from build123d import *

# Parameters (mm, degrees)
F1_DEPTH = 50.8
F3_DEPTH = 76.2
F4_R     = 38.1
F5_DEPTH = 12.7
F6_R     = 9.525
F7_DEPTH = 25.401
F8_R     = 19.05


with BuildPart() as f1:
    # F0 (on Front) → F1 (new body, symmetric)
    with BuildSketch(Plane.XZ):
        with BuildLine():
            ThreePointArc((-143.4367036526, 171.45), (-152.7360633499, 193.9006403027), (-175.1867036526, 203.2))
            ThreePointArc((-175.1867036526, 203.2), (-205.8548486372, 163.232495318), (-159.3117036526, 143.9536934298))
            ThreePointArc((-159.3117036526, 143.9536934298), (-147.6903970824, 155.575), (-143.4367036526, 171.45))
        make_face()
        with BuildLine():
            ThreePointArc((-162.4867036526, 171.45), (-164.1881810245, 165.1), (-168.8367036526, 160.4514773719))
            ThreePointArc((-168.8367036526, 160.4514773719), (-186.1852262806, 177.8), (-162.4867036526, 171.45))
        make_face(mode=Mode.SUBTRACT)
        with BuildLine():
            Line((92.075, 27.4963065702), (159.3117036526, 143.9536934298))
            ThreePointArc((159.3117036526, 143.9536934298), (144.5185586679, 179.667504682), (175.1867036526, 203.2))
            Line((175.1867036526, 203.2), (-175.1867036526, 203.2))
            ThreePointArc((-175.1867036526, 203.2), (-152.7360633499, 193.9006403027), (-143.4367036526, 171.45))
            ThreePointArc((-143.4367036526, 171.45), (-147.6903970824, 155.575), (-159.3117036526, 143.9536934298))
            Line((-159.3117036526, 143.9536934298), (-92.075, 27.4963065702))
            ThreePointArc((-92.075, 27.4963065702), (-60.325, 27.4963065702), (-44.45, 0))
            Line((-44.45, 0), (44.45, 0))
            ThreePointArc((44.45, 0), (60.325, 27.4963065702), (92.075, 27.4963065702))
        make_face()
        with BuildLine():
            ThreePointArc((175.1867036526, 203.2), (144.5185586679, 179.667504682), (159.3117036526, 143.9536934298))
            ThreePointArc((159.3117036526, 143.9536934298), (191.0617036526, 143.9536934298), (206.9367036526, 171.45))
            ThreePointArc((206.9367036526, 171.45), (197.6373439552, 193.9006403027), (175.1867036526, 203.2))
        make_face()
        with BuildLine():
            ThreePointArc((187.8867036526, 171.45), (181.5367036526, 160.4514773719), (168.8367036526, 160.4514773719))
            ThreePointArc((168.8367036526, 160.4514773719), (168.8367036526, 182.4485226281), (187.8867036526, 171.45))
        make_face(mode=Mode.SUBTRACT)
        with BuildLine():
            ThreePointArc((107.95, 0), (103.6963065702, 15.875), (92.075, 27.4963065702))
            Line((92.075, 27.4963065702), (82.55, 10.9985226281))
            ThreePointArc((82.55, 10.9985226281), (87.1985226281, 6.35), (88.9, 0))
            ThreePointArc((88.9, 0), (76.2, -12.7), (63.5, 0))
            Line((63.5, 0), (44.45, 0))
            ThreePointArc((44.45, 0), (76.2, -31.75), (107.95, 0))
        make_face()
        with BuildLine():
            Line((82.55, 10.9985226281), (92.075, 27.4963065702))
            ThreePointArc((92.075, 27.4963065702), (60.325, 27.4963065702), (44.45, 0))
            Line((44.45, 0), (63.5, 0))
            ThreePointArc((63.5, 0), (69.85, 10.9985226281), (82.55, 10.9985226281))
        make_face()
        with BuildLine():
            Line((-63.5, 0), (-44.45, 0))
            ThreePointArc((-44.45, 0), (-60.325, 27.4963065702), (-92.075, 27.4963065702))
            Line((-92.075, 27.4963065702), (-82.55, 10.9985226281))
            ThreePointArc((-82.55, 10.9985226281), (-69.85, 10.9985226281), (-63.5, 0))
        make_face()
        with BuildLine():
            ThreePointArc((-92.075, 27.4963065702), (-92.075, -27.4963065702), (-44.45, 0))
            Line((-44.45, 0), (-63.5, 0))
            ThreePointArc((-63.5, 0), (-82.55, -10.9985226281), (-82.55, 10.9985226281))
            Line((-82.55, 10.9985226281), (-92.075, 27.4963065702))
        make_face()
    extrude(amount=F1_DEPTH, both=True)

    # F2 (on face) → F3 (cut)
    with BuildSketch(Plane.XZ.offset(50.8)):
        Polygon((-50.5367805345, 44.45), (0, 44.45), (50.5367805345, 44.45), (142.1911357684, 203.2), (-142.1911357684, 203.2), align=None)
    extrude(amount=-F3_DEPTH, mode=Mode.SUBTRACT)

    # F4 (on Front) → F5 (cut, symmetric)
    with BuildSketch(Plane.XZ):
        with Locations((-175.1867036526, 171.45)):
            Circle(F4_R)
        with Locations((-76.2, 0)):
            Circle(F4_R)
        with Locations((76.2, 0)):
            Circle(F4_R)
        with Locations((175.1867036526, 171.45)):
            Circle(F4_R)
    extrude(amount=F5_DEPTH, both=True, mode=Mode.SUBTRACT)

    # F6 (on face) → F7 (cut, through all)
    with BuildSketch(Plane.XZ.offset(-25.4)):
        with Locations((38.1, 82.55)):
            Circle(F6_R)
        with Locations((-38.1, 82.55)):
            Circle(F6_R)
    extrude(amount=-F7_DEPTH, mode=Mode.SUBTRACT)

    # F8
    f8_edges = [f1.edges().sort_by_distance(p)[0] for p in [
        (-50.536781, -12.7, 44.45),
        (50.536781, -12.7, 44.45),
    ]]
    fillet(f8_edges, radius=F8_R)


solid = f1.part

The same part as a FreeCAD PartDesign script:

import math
import FreeCAD as App
import Part
import Sketcher
from FreeCAD import Vector
Q = App.Units.Quantity


def edges_at(feature, points):
    """Names of the edges that pass closest to the given points."""
    edges = feature.Shape.Edges
    near = lambda p: min(range(len(edges)), key=lambda i: edges[i].distToShape(Part.Vertex(*p))[0])
    return sorted({f"Edge{near(p) + 1}" for p in points})

doc = App.newDocument("Part")
body = doc.addObject("PartDesign::Body", "Body")

sketch1 = body.newObject("Sketcher::SketchObject", "Sketch")
sketch1.AttachmentSupport = (doc.getObject("XZ_Plane"), [""])
sketch1.MapMode = "FlatFace"
sketch1.addGeometry([
    Part.ArcOfCircle(Part.Circle(Vector(-175.186704, 171.45, 0), Vector(0, 0, 1), 31.75), math.radians(90), math.radians(300)),
    Part.LineSegment(Vector(-159.311704, 143.953693, 0), Vector(-92.075, 27.496307, 0)),
    Part.ArcOfCircle(Part.Circle(Vector(-76.2, 0, 0), Vector(0, 0, 1), 31.75), math.radians(120), math.radians(360)),
    Part.LineSegment(Vector(-44.45, 0, 0), Vector(44.45, 0, 0)),
    Part.ArcOfCircle(Part.Circle(Vector(76.2, 0, 0), Vector(0, 0, 1), 31.75), math.radians(180), math.radians(360)),
    Part.ArcOfCircle(Part.Circle(Vector(76.2, 0, 0), Vector(0, 0, 1), 31.75), math.radians(0), math.radians(60)),
    Part.LineSegment(Vector(92.075, 27.496307, 0), Vector(159.311704, 143.953693, 0)),
    Part.ArcOfCircle(Part.Circle(Vector(175.186704, 171.45, 0), Vector(0, 0, 1), 31.75), math.radians(-120), math.radians(0)),
    Part.ArcOfCircle(Part.Circle(Vector(175.186704, 171.45, 0), Vector(0, 0, 1), 31.75), math.radians(0), math.radians(90)),
    Part.LineSegment(Vector(175.186704, 203.2, 0), Vector(-175.186704, 203.2, 0)),
    Part.ArcOfCircle(Part.Circle(Vector(-76.2, 0, 0), Vector(0, 0, 1), 12.7), math.radians(0), math.radians(120)),
    Part.ArcOfCircle(Part.Circle(Vector(-76.2, 0, 0), Vector(0, 0, 1), 12.7), math.radians(120), math.radians(360)),
    Part.ArcOfCircle(Part.Circle(Vector(-175.186704, 171.45, 0), Vector(0, 0, 1), 12.7), math.radians(0), math.radians(300)),
    Part.ArcOfCircle(Part.Circle(Vector(-175.186704, 171.45, 0), Vector(0, 0, 1), 12.7), math.radians(-60), math.radians(0)),
    Part.ArcOfCircle(Part.Circle(Vector(175.186704, 171.45, 0), Vector(0, 0, 1), 12.7), math.radians(0), math.radians(240)),
    Part.ArcOfCircle(Part.Circle(Vector(175.186704, 171.45, 0), Vector(0, 0, 1), 12.7), math.radians(-120), math.radians(0)),
    Part.ArcOfCircle(Part.Circle(Vector(76.2, 0, 0), Vector(0, 0, 1), 12.7), math.radians(60), math.radians(180)),
    Part.ArcOfCircle(Part.Circle(Vector(76.2, 0, 0), Vector(0, 0, 1), 12.7), math.radians(0), math.radians(60)),
    Part.ArcOfCircle(Part.Circle(Vector(76.2, 0, 0), Vector(0, 0, 1), 12.7), math.radians(180), math.radians(360)),
], False)
sketch1.addConstraint([
    Sketcher.Constraint("Coincident", 0, 2, 1, 1),
    Sketcher.Constraint("Coincident", 1, 2, 2, 1),
    Sketcher.Constraint("Coincident", 2, 2, 3, 1),
    Sketcher.Constraint("Coincident", 3, 2, 4, 1),
    Sketcher.Constraint("Tangent", 4, 2, 5, 1),
    Sketcher.Constraint("Coincident", 5, 2, 6, 1),
    Sketcher.Constraint("Coincident", 6, 2, 7, 1),
    Sketcher.Constraint("Tangent", 7, 2, 8, 1),
    Sketcher.Constraint("Tangent", 8, 2, 9, 1),
    Sketcher.Constraint("Tangent", 9, 2, 0, 1),
    Sketcher.Constraint("Tangent", 10, 1, 11, 2),
    Sketcher.Constraint("Coincident", 11, 1, 10, 2),
    Sketcher.Constraint("Tangent", 12, 1, 13, 2),
    Sketcher.Constraint("Coincident", 13, 1, 12, 2),
    Sketcher.Constraint("Tangent", 14, 1, 15, 2),
    Sketcher.Constraint("Coincident", 15, 1, 14, 2),
    Sketcher.Constraint("Tangent", 16, 1, 17, 2),
    Sketcher.Constraint("Tangent", 17, 1, 18, 2),
    Sketcher.Constraint("Tangent", 18, 1, 16, 2),
    Sketcher.Constraint("Horizontal", 3),
    Sketcher.Constraint("Horizontal", 9),
    Sketcher.Constraint("Coincident", 10, 3, 2, 3),
    Sketcher.Constraint("Coincident", 12, 3, 0, 3),
    Sketcher.Constraint("Coincident", 14, 3, 7, 3),
    Sketcher.Constraint("Coincident", 16, 3, 4, 3),
    Sketcher.Constraint("Equal", 0, 2),
    Sketcher.Constraint("Equal", 2, 4),
    Sketcher.Constraint("Equal", 4, 5),
    Sketcher.Constraint("Equal", 5, 7),
    Sketcher.Constraint("Equal", 7, 8),
    Sketcher.Constraint("Equal", 11, 12),
    Sketcher.Constraint("Equal", 13, 14),
    Sketcher.Constraint("Equal", 15, 16),
    Sketcher.Constraint("Symmetric", 2, 3, 4, 3, -1, 1),
    Sketcher.Constraint("Symmetric", 1, 2, 5, 2, -2),
    Sketcher.Constraint("Symmetric", 0, 2, 6, 2, -2),
    Sketcher.Constraint("PointOnObject", 2, 2, -1),
    Sketcher.Constraint("PointOnObject", 4, 2, -1),
    Sketcher.Constraint("PointOnObject", 10, 1, -1),
    Sketcher.Constraint("PointOnObject", 17, 1, -1),
    Sketcher.Constraint("PointOnObject", 18, 1, -1),
    Sketcher.Constraint("Horizontal", 15, 3, 7, 2),
    Sketcher.Constraint("Horizontal", 7, 2, 12, 1),
    Sketcher.Constraint("Horizontal", 12, 1, 14, 1),
    Sketcher.Constraint("Horizontal", 13, 1, 15, 1),
    Sketcher.Constraint("Horizontal", 11, 1, 16, 1),
    Sketcher.Constraint("Radius", 10, Q("0.5 in")),
    Sketcher.Constraint("Radius", 0, Q("1.25 in")),
    Sketcher.Constraint("DistanceX", 3, 1, 3, 2, Q("3.5 in")),
    Sketcher.Constraint("DistanceY", -1, 1, 8, 2, Q("8 in")),
    Sketcher.Constraint("Angle", 1, Q("-60 deg")),
    Sketcher.Constraint("DistanceX", 11, 1, -1, 1, Q("3.25 in")),
    Sketcher.Constraint("DistanceX", 13, 1, 12, 1, Q("0.25 in")),
    Sketcher.Constraint("DistanceX", 1, 2, -1, 1, Q("3.625 in")),
    Sketcher.Constraint("DistanceX", 0, 3, 0, 2, Q("0.625 in")),
])
pad1 = body.newObject("PartDesign::Pad", "Pad")
pad1.Profile = sketch1
pad1.Length = Q("4 in")
pad1.Midplane = True

sketch2 = body.newObject("Sketcher::SketchObject", "Sketch001")
sketch2.AttachmentSupport = (doc.getObject("XZ_Plane"), [""])
sketch2.MapMode = "FlatFace"
sketch2.AttachmentOffset = App.Placement(Vector(0, 0, 2 * 25.4), App.Rotation())
sketch2.addGeometry([
    Part.LineSegment(Vector(-50.536781, 44.45, 0), Vector(50.536781, 44.45, 0)),
    Part.LineSegment(Vector(50.536781, 44.45, 0), Vector(142.191136, 203.2, 0)),
    Part.LineSegment(Vector(142.191136, 203.2, 0), Vector(-142.191136, 203.2, 0)),
    Part.LineSegment(Vector(-142.191136, 203.2, 0), Vector(-50.536781, 44.45, 0)),
], False)
sketch2.addConstraint([
    Sketcher.Constraint("Coincident", 0, 2, 1, 1),
    Sketcher.Constraint("Coincident", 1, 2, 2, 1),
    Sketcher.Constraint("Coincident", 2, 2, 3, 1),
    Sketcher.Constraint("Coincident", 3, 2, 0, 1),
    Sketcher.Constraint("Horizontal", 0),
    Sketcher.Constraint("Horizontal", 2),
    Sketcher.Constraint("Equal", 1, 3),
    Sketcher.Constraint("DistanceY", -1, 1, 1, 2, Q("8 in")),
    Sketcher.Constraint("Angle", 1, Q("60 deg")),
    Sketcher.Constraint("DistanceY", -1, 1, 0, 2, Q("1.75 in")),
    Sketcher.Constraint("DistanceX", 0, 1, 0, 2, 101.073561),
    Sketcher.Constraint("DistanceX", -1, 1, 0, 2, 50.536781),
])
pocket1 = body.newObject("PartDesign::Pocket", "Pocket")
pocket1.Profile = sketch2
pocket1.Length = Q("3 in")

sketch3 = body.newObject("Sketcher::SketchObject", "Sketch002")
sketch3.AttachmentSupport = (doc.getObject("XZ_Plane"), [""])
sketch3.MapMode = "FlatFace"
sketch3.addGeometry([
    Part.Circle(Vector(-175.186704, 171.45, 0), Vector(0, 0, 1), 38.1),
    Part.Circle(Vector(-76.2, 0, 0), Vector(0, 0, 1), 38.1),
    Part.Circle(Vector(76.2, 0, 0), Vector(0, 0, 1), 38.1),
    Part.Circle(Vector(175.186704, 171.45, 0), Vector(0, 0, 1), 38.1),
], False)
sketch3.addConstraint([
    Sketcher.Constraint("Equal", 0, 1),
    Sketcher.Constraint("Equal", 1, 2),
    Sketcher.Constraint("Equal", 2, 3),
    Sketcher.Constraint("Symmetric", 1, 3, 2, 3, -1, 1),
    Sketcher.Constraint("Symmetric", 0, 3, 3, 3, -2),
    Sketcher.Constraint("PointOnObject", 1, 3, -1),
    Sketcher.Constraint("Diameter", 0, Q("3 in")),
    Sketcher.Constraint("DistanceX", 1, 3, -1, 1, Q("3 in")),
    Sketcher.Constraint("DistanceY", -1, 1, 0, 3, Q("6.75 in")),
    Sketcher.Constraint("DistanceX", 0, 3, -1, 1, 175.186704),
])
pocket2 = body.newObject("PartDesign::Pocket", "Pocket001")
pocket2.Profile = sketch3
pocket2.Length = Q("1 in")
pocket2.Midplane = True

sketch4 = body.newObject("Sketcher::SketchObject", "Sketch003")
sketch4.AttachmentSupport = (doc.getObject("XZ_Plane"), [""])
sketch4.MapMode = "FlatFace"
sketch4.AttachmentOffset = App.Placement(Vector(0, 0, -1 * 25.4), App.Rotation())
sketch4.addGeometry([
    Part.Circle(Vector(38.1, 82.55, 0), Vector(0, 0, 1), 9.525),
    Part.Circle(Vector(-38.1, 82.55, 0), Vector(0, 0, 1), 9.525),
], False)
sketch4.addConstraint([
    Sketcher.Constraint("Equal", 0, 1),
    Sketcher.Constraint("Symmetric", 0, 3, 1, 3, -2),
    Sketcher.Constraint("Diameter", 0, Q("0.75 in")),
    Sketcher.Constraint("DistanceX", 1, 3, 0, 3, Q("3 in")),
    Sketcher.Constraint("DistanceY", -1, 1, 0, 3, Q("3.25 in")),
])
pocket3 = body.newObject("PartDesign::Pocket", "Pocket002")
pocket3.Profile = sketch4
pocket3.Type = "ThroughAll"
doc.recompute()

fillet = body.newObject("PartDesign::Fillet", "Fillet")
fillet.Base = (pocket3, edges_at(pocket3, [(-50.537, -12.7, 44.45), (50.537, -12.7, 44.45)]))
fillet.Radius = Q("0.75 in")

doc.recompute()
